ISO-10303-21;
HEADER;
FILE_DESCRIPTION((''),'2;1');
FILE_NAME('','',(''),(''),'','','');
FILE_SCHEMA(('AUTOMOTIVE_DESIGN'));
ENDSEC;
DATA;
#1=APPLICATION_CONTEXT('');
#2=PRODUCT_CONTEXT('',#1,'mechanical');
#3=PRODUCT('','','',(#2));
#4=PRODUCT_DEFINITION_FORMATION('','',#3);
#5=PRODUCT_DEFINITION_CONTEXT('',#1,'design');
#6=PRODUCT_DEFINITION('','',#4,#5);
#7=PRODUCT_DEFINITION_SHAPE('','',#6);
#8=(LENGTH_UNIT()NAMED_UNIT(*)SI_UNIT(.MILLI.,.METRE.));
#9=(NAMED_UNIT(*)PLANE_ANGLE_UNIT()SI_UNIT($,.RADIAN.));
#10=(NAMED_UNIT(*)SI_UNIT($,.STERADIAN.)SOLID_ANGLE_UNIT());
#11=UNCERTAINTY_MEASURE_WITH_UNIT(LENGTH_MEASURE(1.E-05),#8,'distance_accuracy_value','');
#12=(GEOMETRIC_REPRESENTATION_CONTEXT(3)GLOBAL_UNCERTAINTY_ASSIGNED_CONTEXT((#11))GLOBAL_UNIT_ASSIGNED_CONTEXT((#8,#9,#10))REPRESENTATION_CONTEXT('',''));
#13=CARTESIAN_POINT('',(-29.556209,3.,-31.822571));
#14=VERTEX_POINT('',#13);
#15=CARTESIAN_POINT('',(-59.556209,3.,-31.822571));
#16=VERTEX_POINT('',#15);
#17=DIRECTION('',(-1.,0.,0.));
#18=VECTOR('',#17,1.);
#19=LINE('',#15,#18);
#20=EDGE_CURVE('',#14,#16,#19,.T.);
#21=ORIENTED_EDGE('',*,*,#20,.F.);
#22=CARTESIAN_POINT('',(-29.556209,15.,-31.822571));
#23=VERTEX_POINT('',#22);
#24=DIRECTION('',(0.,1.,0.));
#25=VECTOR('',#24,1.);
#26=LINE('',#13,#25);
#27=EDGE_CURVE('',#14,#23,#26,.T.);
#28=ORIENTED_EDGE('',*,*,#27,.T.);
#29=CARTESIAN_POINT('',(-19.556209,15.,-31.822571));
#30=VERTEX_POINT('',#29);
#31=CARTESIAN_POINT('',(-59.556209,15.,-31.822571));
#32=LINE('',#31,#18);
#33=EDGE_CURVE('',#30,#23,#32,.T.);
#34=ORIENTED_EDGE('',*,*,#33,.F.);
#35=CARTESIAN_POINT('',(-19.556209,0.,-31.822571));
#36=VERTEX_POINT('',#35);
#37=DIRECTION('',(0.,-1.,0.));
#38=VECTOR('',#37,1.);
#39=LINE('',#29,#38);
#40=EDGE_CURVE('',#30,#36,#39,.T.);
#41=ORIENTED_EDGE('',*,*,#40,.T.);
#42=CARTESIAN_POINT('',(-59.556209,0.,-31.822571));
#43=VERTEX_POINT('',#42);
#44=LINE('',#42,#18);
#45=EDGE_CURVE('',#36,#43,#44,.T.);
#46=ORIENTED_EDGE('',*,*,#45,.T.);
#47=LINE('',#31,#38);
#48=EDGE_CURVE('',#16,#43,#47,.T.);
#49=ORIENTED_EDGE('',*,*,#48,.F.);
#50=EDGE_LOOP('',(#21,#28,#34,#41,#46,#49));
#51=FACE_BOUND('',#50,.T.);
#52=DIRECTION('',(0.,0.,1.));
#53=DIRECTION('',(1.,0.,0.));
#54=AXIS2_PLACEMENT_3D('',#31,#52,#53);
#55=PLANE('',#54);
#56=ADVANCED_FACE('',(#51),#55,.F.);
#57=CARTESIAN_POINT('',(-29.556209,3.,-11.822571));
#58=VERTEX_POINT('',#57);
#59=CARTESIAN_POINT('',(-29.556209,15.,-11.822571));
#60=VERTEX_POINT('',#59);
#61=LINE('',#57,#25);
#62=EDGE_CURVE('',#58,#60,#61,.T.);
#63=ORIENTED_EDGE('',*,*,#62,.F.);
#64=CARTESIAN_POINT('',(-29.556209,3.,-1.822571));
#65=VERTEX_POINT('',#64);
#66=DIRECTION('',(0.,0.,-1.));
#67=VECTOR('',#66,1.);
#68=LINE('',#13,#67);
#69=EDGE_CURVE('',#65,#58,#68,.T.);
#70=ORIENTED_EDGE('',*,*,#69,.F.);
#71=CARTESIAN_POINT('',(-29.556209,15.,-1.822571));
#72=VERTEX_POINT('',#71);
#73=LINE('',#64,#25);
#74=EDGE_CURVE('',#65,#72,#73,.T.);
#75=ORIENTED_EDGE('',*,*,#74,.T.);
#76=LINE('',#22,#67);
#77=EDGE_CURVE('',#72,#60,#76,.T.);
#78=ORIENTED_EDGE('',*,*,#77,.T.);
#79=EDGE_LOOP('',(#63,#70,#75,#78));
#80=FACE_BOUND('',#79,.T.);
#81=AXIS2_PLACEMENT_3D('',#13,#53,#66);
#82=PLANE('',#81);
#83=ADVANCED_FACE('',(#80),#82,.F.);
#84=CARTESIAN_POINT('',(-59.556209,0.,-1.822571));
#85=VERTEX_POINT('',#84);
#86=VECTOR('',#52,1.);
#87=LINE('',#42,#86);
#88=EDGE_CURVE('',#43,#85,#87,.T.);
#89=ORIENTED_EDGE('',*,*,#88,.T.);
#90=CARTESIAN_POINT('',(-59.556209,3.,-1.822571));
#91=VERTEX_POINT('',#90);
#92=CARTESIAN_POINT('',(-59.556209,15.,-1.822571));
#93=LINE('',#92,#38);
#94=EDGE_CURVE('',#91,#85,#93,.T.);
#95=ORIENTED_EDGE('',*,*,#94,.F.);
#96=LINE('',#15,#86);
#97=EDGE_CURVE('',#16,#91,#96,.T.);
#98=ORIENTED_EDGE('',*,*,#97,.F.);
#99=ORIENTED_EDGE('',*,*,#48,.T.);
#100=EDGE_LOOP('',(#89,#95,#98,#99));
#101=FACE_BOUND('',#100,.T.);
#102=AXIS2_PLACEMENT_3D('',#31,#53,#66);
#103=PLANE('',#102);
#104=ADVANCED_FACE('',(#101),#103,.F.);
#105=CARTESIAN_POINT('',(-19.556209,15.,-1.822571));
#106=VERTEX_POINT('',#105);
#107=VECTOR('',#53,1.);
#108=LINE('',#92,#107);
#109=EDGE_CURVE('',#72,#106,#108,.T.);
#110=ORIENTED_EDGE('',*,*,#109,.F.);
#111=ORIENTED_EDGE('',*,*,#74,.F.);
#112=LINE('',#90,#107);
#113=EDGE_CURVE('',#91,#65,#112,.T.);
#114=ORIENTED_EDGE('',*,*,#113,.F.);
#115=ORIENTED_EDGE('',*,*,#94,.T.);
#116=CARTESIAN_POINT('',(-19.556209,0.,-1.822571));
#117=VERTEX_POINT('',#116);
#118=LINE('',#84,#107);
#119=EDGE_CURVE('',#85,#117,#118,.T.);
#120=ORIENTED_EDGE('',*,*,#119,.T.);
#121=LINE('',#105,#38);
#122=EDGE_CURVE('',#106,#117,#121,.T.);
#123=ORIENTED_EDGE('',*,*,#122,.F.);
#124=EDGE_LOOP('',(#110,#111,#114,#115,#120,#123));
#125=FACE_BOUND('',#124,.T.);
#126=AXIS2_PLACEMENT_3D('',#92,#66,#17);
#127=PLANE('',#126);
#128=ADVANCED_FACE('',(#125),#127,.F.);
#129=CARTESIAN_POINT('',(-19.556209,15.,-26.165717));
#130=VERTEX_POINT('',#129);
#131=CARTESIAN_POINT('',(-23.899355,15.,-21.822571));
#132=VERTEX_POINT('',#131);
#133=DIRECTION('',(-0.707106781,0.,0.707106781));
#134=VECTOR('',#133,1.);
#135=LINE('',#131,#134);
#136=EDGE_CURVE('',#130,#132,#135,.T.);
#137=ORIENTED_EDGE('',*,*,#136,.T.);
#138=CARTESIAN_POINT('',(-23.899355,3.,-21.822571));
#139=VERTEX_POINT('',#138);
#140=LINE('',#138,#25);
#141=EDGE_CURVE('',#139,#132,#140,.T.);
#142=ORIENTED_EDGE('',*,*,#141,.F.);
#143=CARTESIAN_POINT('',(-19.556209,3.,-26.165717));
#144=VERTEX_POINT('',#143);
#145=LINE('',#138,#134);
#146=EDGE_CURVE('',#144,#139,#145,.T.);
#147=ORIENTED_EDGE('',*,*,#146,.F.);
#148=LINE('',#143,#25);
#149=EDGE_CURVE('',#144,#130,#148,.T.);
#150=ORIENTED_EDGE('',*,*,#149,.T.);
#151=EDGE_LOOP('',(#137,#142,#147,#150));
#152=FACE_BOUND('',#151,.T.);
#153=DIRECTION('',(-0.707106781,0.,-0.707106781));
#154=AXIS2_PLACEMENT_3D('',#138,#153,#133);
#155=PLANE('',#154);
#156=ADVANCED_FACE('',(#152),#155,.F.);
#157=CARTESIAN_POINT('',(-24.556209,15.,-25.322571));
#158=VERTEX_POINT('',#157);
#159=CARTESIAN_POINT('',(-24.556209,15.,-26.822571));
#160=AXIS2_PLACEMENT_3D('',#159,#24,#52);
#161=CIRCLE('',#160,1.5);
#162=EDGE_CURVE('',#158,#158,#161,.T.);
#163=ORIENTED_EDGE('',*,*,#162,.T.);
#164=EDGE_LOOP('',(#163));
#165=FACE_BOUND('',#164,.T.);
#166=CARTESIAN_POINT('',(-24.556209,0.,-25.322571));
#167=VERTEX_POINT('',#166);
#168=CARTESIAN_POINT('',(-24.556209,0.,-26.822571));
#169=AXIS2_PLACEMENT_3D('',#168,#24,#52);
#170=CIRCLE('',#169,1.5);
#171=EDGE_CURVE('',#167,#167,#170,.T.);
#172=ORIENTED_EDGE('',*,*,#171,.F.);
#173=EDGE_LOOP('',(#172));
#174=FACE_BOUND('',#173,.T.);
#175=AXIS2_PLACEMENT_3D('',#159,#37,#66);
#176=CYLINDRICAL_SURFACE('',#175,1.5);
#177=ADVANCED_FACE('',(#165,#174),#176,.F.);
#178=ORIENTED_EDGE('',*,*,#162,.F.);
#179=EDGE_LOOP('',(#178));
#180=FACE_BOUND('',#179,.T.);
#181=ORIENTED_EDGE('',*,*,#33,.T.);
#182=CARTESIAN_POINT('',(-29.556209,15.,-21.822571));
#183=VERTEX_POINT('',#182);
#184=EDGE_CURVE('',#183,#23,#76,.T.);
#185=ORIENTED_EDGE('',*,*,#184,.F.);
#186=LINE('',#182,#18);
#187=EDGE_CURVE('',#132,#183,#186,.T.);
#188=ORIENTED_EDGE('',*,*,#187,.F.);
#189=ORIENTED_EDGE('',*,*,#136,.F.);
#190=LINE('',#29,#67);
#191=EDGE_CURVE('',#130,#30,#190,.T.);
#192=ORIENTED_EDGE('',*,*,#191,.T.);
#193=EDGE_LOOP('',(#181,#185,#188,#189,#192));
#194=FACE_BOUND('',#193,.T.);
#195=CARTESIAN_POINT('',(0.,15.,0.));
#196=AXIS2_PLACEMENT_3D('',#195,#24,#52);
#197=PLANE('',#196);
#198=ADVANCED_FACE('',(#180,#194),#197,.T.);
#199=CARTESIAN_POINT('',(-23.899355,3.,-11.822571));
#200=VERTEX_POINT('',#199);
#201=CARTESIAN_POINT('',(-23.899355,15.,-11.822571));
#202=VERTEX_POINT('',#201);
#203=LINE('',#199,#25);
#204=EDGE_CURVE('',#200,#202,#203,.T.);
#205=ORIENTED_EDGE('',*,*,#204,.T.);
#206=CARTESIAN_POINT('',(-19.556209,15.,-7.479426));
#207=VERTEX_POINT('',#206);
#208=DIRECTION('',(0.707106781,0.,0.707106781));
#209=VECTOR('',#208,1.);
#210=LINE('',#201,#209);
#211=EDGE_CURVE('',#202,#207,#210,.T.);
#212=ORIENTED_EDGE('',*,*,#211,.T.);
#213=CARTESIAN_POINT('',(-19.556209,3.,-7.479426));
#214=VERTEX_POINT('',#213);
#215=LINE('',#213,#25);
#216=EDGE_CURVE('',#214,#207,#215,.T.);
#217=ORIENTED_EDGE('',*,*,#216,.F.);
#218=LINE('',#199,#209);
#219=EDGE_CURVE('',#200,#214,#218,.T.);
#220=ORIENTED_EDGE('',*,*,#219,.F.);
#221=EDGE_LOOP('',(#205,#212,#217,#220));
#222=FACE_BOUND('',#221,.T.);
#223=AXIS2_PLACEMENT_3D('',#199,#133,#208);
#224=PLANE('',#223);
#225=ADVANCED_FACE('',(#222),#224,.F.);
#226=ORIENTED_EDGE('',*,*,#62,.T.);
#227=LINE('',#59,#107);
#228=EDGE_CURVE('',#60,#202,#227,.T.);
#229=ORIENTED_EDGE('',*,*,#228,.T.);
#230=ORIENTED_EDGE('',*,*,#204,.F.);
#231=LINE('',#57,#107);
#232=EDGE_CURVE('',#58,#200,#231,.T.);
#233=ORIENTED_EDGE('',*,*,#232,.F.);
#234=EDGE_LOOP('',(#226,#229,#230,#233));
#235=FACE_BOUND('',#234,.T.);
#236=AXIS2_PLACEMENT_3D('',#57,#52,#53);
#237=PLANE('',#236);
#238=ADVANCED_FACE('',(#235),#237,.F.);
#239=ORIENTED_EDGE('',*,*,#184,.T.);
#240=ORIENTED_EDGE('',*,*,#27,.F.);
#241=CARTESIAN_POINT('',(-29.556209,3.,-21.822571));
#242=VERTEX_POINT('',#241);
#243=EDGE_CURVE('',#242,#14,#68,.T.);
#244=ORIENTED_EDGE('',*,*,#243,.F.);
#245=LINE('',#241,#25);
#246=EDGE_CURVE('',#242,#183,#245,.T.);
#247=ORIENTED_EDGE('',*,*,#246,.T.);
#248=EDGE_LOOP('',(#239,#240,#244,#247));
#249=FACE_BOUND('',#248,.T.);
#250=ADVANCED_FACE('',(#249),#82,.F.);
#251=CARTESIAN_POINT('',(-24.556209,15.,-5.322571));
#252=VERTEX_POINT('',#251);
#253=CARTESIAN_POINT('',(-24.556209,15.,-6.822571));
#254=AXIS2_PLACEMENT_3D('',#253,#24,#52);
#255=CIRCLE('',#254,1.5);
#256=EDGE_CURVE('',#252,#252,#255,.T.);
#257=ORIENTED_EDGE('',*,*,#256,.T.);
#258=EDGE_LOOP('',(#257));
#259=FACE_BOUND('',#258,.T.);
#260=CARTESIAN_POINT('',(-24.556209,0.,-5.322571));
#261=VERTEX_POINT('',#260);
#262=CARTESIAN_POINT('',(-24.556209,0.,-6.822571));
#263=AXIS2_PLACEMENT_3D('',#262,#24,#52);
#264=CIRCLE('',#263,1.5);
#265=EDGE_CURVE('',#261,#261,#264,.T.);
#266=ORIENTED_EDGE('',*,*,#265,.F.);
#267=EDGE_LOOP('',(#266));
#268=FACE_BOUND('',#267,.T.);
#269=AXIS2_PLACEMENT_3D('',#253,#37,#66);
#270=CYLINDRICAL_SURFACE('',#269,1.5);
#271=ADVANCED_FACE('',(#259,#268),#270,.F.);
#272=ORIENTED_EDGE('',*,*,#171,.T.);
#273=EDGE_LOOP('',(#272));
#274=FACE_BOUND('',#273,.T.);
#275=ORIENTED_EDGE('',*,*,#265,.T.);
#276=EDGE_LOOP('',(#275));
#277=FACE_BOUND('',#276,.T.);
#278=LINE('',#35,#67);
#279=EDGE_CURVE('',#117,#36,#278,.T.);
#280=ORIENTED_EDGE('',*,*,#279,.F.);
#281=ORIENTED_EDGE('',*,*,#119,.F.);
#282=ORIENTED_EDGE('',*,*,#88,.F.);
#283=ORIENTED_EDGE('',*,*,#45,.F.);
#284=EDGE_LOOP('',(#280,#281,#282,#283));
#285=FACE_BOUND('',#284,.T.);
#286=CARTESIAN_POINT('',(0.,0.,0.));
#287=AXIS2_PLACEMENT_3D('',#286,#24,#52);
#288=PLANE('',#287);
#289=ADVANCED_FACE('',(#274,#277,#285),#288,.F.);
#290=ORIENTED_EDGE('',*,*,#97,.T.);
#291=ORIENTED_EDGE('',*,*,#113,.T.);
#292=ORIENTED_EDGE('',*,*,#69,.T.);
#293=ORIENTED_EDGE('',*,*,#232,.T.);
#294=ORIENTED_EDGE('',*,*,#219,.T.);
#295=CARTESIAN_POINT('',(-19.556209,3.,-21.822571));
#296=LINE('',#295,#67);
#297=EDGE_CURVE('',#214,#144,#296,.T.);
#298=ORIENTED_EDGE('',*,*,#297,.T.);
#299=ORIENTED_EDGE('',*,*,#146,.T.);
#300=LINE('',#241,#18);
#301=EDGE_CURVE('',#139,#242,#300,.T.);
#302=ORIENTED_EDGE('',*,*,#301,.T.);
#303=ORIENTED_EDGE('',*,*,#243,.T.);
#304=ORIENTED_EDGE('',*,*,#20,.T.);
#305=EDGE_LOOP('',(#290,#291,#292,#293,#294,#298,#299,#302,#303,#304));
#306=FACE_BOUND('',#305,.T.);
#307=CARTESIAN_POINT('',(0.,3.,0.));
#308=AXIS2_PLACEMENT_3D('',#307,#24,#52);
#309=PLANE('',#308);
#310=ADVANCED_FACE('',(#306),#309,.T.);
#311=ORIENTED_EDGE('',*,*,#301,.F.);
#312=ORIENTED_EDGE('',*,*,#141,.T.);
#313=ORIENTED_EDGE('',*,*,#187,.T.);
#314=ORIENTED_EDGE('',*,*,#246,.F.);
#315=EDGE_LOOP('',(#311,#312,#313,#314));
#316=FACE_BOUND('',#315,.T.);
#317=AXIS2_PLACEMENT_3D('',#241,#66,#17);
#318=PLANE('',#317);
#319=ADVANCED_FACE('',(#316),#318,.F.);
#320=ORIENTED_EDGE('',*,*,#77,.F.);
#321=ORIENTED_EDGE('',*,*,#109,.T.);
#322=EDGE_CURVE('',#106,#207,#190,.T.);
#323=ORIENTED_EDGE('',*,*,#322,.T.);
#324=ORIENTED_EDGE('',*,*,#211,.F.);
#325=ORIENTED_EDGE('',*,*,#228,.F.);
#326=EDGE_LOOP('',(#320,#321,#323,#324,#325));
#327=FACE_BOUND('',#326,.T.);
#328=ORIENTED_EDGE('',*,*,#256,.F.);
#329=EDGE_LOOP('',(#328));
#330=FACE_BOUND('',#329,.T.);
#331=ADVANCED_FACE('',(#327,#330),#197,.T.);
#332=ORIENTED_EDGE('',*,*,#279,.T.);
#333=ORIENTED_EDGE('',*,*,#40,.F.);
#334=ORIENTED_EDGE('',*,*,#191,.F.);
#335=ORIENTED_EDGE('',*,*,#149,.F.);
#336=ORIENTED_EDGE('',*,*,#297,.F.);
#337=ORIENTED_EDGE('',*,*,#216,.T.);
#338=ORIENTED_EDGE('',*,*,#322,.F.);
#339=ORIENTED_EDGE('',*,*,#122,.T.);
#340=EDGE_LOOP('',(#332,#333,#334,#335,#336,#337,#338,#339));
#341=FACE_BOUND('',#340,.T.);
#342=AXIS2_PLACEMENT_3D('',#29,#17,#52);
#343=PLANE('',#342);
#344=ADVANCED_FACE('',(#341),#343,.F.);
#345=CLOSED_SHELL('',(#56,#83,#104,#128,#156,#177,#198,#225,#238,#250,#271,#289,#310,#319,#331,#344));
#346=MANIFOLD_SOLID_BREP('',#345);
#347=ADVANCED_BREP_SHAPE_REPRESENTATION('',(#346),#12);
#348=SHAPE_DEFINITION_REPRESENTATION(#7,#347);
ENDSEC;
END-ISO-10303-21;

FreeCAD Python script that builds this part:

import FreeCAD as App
import Part
import Sketcher
from FreeCAD import Vector
Q = App.Units.Quantity


def add_polygon(sketch, points):
    """Adds a closed chain of lines whose ends are joined by coincident constraints."""
    first, n = sketch.GeometryCount, len(points)
    for a, b in zip(points, points[1:] + points[:1]):
        sketch.addGeometry(Part.LineSegment(App.Vector(*a, 0), App.Vector(*b, 0)), False)
    for i in range(n):
        sketch.addConstraint(Sketcher.Constraint("Coincident", first + i, 2, first + (i + 1) % n, 1))

doc = App.newDocument("Part")
body = doc.addObject("PartDesign::Body", "Body")

sketch1 = body.newObject("Sketcher::SketchObject", "Sketch")
sketch1.AttachmentSupport = (doc.getObject("XZ_Plane"), [""])
sketch1.MapMode = "FlatFace"
add_polygon(sketch1, [(-59.6, -31.8), (-59.6, -1.8), (-19.6, -1.8), (-19.6, -31.8)])
sketch1.addGeometry(Part.Circle(Vector(-24.6, -6.8, 0), Vector(0, 0, 1), 1.5), False)
sketch1.addGeometry(Part.Circle(Vector(-24.6, -26.8, 0), Vector(0, 0, 1), 1.5), False)
sketch1.addConstraint([
    Sketcher.Constraint("Vertical", 0),
    Sketcher.Constraint("Horizontal", 1),
    Sketcher.Constraint("Vertical", 2),
    Sketcher.Constraint("Horizontal", 3),
    Sketcher.Constraint("Equal", 4, 5),
    Sketcher.Constraint("Vertical", 4, 3, 5, 3),
    Sketcher.Constraint("Diameter", 4, Q("3 mm")),
    Sketcher.Constraint("DistanceX", 1, 1, 1, 2, Q("40 mm")),
    Sketcher.Constraint("DistanceY", 0, 1, 0, 2, Q("30 mm")),
    Sketcher.Constraint("DistanceY", 5, 3, 4, 3, Q("20 mm")),
    Sketcher.Constraint("DistanceX", 0, 2, 4, 3, Q("35 mm")),
    Sketcher.Constraint("DistanceY", 4, 3, 0, 2, Q("5 mm")),
    Sketcher.Constraint("DistanceX", 4, 3, -1, 1, Q("24.556209 mm")),
    Sketcher.Constraint("DistanceY", 4, 3, -1, 1, Q("6.822571 mm")),
])
pad1 = body.newObject("PartDesign::Pad", "Pad")
pad1.Profile = sketch1
pad1.Length = 15
pad1.Reversed = True

sketch2 = body.newObject("Sketcher::SketchObject", "Sketch001")
sketch2.AttachmentSupport = (doc.getObject("XZ_Plane"), [""])
sketch2.MapMode = "FlatFace"
sketch2.AttachmentOffset = App.Placement(Vector(0, 0, -15), App.Rotation())
add_polygon(sketch2, [(-60, -32), (-60, -2), (-30, -2), (-30, -32)])
sketch2.addConstraint([
    Sketcher.Constraint("Vertical", 0),
    Sketcher.Constraint("Horizontal", 1),
    Sketcher.Constraint("Vertical", 2),
    Sketcher.Constraint("Horizontal", 3),
    Sketcher.Constraint("Equal", 3, 0),
    Sketcher.Constraint("DistanceX", 1, 1, 1, 2, Q("30 mm")),
    Sketcher.Constraint("DistanceX", 0, 2, -1, 1, Q("59.556209 mm")),
    Sketcher.Constraint("DistanceY", 0, 2, -1, 1, Q("1.822571 mm")),
])
pocket1 = body.newObject("PartDesign::Pocket", "Pocket")
pocket1.Profile = sketch2
pocket1.Length = 12
pocket1.Reversed = True

sketch3 = body.newObject("Sketcher::SketchObject", "Sketch002")
sketch3.AttachmentSupport = (doc.getObject("XZ_Plane"), [""])
sketch3.MapMode = "FlatFace"
sketch3.AttachmentOffset = App.Placement(Vector(0, 0, -15), App.Rotation())
add_polygon(sketch3, [(-30, -22), (-30, -12), (-20, -12), (-20, -22)])
sketch3.addConstraint([
    Sketcher.Constraint("Vertical", 0),
    Sketcher.Constraint("Horizontal", 1),
    Sketcher.Constraint("Vertical", 2),
    Sketcher.Constraint("Horizontal", 3),
    Sketcher.Constraint("Equal", 3, 0),
    Sketcher.Constraint("DistanceX", 1, 1, 1, 2, Q("10 mm")),
    Sketcher.Constraint("DistanceX", 0, 2, -1, 1, Q("29.556209 mm")),
    Sketcher.Constraint("DistanceY", 0, 2, -1, 1, Q("11.822571 mm")),
])
pocket2 = body.newObject("PartDesign::Pocket", "Pocket001")
pocket2.Profile = sketch3
pocket2.Length = 12
pocket2.Reversed = True

sketch4 = body.newObject("Sketcher::SketchObject", "Sketch003")
sketch4.AttachmentSupport = (doc.getObject("XZ_Plane"), [""])
sketch4.MapMode = "FlatFace"
sketch4.AttachmentOffset = App.Placement(Vector(0, 0, -15), App.Rotation())
add_polygon(sketch4, [(-19.6, -26.2), (-23.9, -21.8), (-19.6, -21.8)])
add_polygon(sketch4, [(-23.9, -11.8), (-19.6, -7.5), (-19.6, -11.8)])
sketch4.addConstraint([
    Sketcher.Constraint("Horizontal", 1),
    Sketcher.Constraint("Vertical", 2),
    Sketcher.Constraint("Vertical", 4),
    Sketcher.Constraint("Horizontal", 5),
    Sketcher.Constraint("Perpendicular", 0, 3),
    Sketcher.Constraint("Vertical", 2, 2, 3, 2),
    Sketcher.Constraint("Vertical", 0, 2, 5, 2),
    Sketcher.Constraint("Equal", 5, 2),
    Sketcher.Constraint("DistanceY", 1, 2, 4, 2, Q("10 mm")),
    Sketcher.Constraint("DistanceX", 1, 1, 1, 2, Q("4.343146 mm")),
    Sketcher.Constraint("DistanceY", 0, 2, -1, 1, Q("21.822571 mm")),
    Sketcher.Constraint("DistanceX", 1, 2, -1, 1, Q("19.556209 mm")),
])
pocket3 = body.newObject("PartDesign::Pocket", "Pocket002")
pocket3.Profile = sketch4
pocket3.Length = 12
pocket3.Reversed = True

doc.recompute()
